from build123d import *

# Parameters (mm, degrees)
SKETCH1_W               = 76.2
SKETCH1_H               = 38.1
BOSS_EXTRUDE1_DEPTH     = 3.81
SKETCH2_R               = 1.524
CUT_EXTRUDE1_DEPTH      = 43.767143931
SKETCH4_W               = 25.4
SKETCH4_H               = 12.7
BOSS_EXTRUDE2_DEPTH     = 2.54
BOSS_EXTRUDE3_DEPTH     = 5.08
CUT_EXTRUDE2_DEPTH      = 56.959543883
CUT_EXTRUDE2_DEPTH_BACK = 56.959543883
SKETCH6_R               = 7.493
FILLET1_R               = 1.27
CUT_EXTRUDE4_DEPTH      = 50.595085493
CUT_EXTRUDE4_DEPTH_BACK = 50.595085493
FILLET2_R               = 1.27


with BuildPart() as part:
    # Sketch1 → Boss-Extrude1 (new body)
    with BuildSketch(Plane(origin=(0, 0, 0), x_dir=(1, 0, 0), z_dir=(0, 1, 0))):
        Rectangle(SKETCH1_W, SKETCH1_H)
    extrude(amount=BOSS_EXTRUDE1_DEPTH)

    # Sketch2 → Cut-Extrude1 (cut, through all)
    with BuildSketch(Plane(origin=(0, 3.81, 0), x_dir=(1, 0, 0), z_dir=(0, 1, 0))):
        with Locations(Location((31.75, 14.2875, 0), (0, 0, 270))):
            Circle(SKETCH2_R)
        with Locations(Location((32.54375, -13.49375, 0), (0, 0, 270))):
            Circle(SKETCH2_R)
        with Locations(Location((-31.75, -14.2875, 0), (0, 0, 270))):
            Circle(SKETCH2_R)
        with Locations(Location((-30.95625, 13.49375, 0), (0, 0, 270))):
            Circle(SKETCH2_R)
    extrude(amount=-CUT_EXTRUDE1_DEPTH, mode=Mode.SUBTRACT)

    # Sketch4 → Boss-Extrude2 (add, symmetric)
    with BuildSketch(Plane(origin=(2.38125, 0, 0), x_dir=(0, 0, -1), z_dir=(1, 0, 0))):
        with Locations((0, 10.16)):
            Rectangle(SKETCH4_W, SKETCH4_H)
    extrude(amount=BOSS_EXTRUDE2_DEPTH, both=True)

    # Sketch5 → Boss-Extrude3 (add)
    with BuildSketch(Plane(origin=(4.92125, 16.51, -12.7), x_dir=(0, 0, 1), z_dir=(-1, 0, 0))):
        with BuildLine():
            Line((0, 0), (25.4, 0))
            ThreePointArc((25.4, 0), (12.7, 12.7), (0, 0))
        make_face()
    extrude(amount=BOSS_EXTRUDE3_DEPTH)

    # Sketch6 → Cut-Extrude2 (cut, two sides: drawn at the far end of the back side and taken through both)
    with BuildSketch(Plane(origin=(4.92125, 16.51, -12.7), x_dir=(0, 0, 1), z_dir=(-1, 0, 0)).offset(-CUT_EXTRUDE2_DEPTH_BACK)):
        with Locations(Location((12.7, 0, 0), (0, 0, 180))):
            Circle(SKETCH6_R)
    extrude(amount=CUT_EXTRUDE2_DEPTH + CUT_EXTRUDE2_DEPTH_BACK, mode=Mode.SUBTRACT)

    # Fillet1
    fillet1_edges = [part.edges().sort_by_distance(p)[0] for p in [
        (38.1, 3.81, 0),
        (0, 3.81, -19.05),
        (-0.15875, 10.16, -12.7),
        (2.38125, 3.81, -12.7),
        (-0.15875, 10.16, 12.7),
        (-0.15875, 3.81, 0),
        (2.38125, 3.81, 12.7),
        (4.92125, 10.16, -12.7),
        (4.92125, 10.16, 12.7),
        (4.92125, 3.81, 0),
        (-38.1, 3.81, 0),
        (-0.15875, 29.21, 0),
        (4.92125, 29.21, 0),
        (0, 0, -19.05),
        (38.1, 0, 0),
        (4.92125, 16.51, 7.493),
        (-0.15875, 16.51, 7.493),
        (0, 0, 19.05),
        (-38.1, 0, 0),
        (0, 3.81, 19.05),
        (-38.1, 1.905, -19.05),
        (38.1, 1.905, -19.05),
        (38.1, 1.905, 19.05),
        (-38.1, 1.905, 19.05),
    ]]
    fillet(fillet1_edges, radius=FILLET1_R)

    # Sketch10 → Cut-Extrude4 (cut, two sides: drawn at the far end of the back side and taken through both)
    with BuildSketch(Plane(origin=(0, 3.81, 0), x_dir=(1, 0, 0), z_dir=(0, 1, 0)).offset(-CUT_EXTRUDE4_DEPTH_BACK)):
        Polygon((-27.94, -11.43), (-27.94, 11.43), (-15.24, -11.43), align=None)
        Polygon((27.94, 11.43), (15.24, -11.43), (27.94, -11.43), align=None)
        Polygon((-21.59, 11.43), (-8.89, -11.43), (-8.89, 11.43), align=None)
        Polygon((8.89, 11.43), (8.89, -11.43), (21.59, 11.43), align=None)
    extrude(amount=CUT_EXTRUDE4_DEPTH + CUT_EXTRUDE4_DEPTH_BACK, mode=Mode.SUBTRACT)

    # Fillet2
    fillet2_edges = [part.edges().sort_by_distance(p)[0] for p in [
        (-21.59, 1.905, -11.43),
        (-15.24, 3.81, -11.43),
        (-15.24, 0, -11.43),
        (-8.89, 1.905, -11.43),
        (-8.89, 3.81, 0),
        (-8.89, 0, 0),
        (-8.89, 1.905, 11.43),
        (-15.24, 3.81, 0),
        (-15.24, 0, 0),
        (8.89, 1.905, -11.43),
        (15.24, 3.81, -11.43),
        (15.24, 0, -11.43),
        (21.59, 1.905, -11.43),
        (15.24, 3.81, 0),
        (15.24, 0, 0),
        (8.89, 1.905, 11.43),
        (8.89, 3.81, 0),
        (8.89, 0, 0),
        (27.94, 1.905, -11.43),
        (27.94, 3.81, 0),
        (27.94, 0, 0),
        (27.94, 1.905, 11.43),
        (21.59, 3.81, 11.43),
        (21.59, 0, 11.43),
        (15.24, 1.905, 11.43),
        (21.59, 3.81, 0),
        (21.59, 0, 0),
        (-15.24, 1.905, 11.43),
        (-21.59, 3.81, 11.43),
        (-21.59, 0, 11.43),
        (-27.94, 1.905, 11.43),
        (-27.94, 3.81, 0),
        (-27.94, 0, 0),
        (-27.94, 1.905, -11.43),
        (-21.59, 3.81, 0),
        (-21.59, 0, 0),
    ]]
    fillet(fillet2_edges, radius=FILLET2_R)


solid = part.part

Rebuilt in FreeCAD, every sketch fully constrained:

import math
import FreeCAD as App
import Part
import Sketcher
Q = App.Units.Quantity


def edges_at(feature, points):
    """Names of the edges that pass closest to the given points."""
    edges = feature.Shape.Edges
    near = lambda p: min(range(len(edges)), key=lambda i: edges[i].distToShape(Part.Vertex(*p))[0])
    return sorted({f"Edge{near(p) + 1}" for p in points})

doc = App.newDocument("Part")
body = doc.addObject("PartDesign::Body", "Body")

# Sketch on XZ plane
sketch1 = body.newObject("Sketcher::SketchObject", "Sketch")
sketch1.AttachmentSupport = (doc.getObject("XZ_Plane"), [""])
sketch1.MapMode = "FlatFace"
sketch1.addGeometry([
    Part.LineSegment(App.Vector(-38, -19, 0), App.Vector(-38, 19, 0)),
    Part.LineSegment(App.Vector(-38, 19, 0), App.Vector(38, 19, 0)),
    Part.LineSegment(App.Vector(38, 19, 0), App.Vector(38, -19, 0)),
    Part.LineSegment(App.Vector(38, -19, 0), App.Vector(-38, -19, 0)),
], False)
sketch1.addConstraint([
    Sketcher.Constraint("Coincident", 0, 2, 1, 1),
    Sketcher.Constraint("Coincident", 1, 2, 2, 1),
    Sketcher.Constraint("Coincident", 2, 2, 3, 1),
    Sketcher.Constraint("Coincident", 3, 2, 0, 1),
    Sketcher.Constraint("Vertical", 0),
    Sketcher.Constraint("Horizontal", 1),
    Sketcher.Constraint("Vertical", 2),
    Sketcher.Constraint("Horizontal", 3),
    Sketcher.Constraint("Symmetric", 0, 2, 2, 2, -1, 1),
    Sketcher.Constraint("DistanceX", 1, 1, 1, 2, Q("3 in")),
    Sketcher.Constraint("DistanceY", 0, 1, 0, 2, Q("1.5 in")),
])
pad1 = body.newObject("PartDesign::Pad", "Pad")
pad1.Profile = sketch1
pad1.Length = Q("0.15 in")
pad1.Reversed = True

# Sketch on XZ plane
sketch2 = body.newObject("Sketcher::SketchObject", "Sketch001")
sketch2.AttachmentSupport = (doc.getObject("XZ_Plane"), [""])
sketch2.MapMode = "FlatFace"
sketch2.AttachmentOffset = App.Placement(App.Vector(0, 0, -0.15 * 25.4), App.Rotation())
sketch2.addGeometry([
    Part.Circle(App.Vector(31.8, -14.3, 0), App.Vector(0, 0, 1), 1.5),
    Part.Circle(App.Vector(32.5, 13.5, 0), App.Vector(0, 0, 1), 1.5),
    Part.Circle(App.Vector(-31.8, 14.3, 0), App.Vector(0, 0, 1), 1.5),
    Part.Circle(App.Vector(-31, -13.5, 0), App.Vector(0, 0, 1), 1.5),
], False)
sketch2.addConstraint([
    Sketcher.Constraint("Equal", 0, 1),
    Sketcher.Constraint("Equal", 1, 2),
    Sketcher.Constraint("Equal", 2, 3),
    Sketcher.Constraint("Symmetric", 0, 3, 2, 3, -1, 1),
    Sketcher.Constraint("Diameter", 0, Q("0.12 in")),
    Sketcher.Constraint("DistanceX", 2, 3, 0, 3, Q("2.5 in")),
    Sketcher.Constraint("DistanceX", 3, 3, 1, 3, Q("2.5 in")),
    Sketcher.Constraint("DistanceY", 0, 3, -1, 1, Q("0.5625 in")),
    Sketcher.Constraint("DistanceX", -1, 1, 1, 3, Q("1.28125 in")),
    Sketcher.Constraint("DistanceY", -1, 1, 1, 3, Q("0.53125 in")),
    Sketcher.Constraint("DistanceY", 3, 3, -1, 1, Q("0.53125 in")),
])
pocket1 = body.newObject("PartDesign::Pocket", "Pocket")
pocket1.Profile = sketch2
pocket1.Type = "ThroughAll"
pocket1.Reversed = True

# Sketch on YZ plane
sketch3 = body.newObject("Sketcher::SketchObject", "Sketch002")
sketch3.AttachmentSupport = (doc.getObject("YZ_Plane"), [""])
sketch3.MapMode = "FlatFace"
sketch3.AttachmentOffset = App.Placement(App.Vector(0, 0, 0.09375 * 25.4), App.Rotation())
sketch3.addGeometry([
    Part.LineSegment(App.Vector(17, 13, 0), App.Vector(4, 13, 0)),
    Part.LineSegment(App.Vector(4, 13, 0), App.Vector(4, -13, 0)),
    Part.LineSegment(App.Vector(4, -13, 0), App.Vector(17, -13, 0)),
    Part.LineSegment(App.Vector(17, -13, 0), App.Vector(17, 13, 0)),
], False)
sketch3.addConstraint([
    Sketcher.Constraint("Coincident", 0, 2, 1, 1),
    Sketcher.Constraint("Coincident", 1, 2, 2, 1),
    Sketcher.Constraint("Coincident", 2, 2, 3, 1),
    Sketcher.Constraint("Coincident", 3, 2, 0, 1),
    Sketcher.Constraint("Horizontal", 0),
    Sketcher.Constraint("Vertical", 1),
    Sketcher.Constraint("Horizontal", 2),
    Sketcher.Constraint("Vertical", 3),
    Sketcher.Constraint("DistanceY", 1, 2, 1, 1, Q("1 in")),
    Sketcher.Constraint("DistanceX", 0, 2, 0, 1, Q("0.5 in")),
    Sketcher.Constraint("DistanceY", -1, 1, 0, 2, Q("0.5 in")),
    Sketcher.Constraint("DistanceX", -1, 1, 0, 2, Q("0.15 in")),
])
pad2 = body.newObject("PartDesign::Pad", "Pad001")
pad2.Profile = sketch3
pad2.Length = Q("0.2 in")
pad2.Midplane = True

# Sketch on YZ plane
sketch4 = body.newObject("Sketcher::SketchObject", "Sketch003")
sketch4.AttachmentSupport = (doc.getObject("YZ_Plane"), [""])
sketch4.MapMode = "FlatFace"
sketch4.AttachmentOffset = App.Placement(App.Vector(0, 0, 4.92125), App.Rotation())
sketch4.addGeometry([
    Part.LineSegment(App.Vector(17, -13, 0), App.Vector(17, 13, 0)),
    Part.ArcOfCircle(Part.Circle(App.Vector(17, 0, 0), App.Vector(0, 0, 1), 13), math.radians(-90), math.radians(90)),
], False)
sketch4.addConstraint([
    Sketcher.Constraint("Coincident", 0, 1, 1, 1),
    Sketcher.Constraint("Coincident", 1, 2, 0, 2),
    Sketcher.Constraint("Vertical", 0),
    Sketcher.Constraint("PointOnObject", 1, 3, -1),
    Sketcher.Constraint("Vertical", 1, 3, 0, 1),
    Sketcher.Constraint("Radius", 1, Q("0.5 in")),
    Sketcher.Constraint("DistanceX", -1, 1, 1, 3, Q("0.65 in")),
])
pad3 = body.newObject("PartDesign::Pad", "Pad002")
pad3.Profile = sketch4
pad3.Length = Q("0.2 in")
pad3.Reversed = True

# Sketch on YZ plane
sketch5 = body.newObject("Sketcher::SketchObject", "Sketch004")
sketch5.AttachmentSupport = (doc.getObject("YZ_Plane"), [""])
sketch5.MapMode = "FlatFace"
sketch5.AttachmentOffset = App.Placement(App.Vector(0, 0, 4.92125), App.Rotation())
sketch5.addGeometry(Part.Circle(App.Vector(17, 0, 0), App.Vector(0, 0, 1), 7), False)
sketch5.addConstraint([
    Sketcher.Constraint("PointOnObject", 0, 3, -1),
    Sketcher.Constraint("Diameter", 0, Q("0.59 in")),
    Sketcher.Constraint("DistanceX", -1, 1, 0, 3, Q("0.65 in")),
])
pocket2 = body.newObject("PartDesign::Pocket", "Pocket001")
pocket2.Profile = sketch5
pocket2.Type = "ThroughAll"
pocket2.Midplane = True
doc.recompute()

fillet = body.newObject("PartDesign::Fillet", "Fillet")
fillet.Base = (pocket2, edges_at(pocket2, [
    (38.1, 3.81, 0),
    (0, 3.81, -19.05),
    (-0.159, 10.16, -12.7),
    (2.381, 3.81, -12.7),
    (-0.159, 10.16, 12.7),
    (-0.159, 3.81, 0),
    (2.381, 3.81, 12.7),
    (4.921, 10.16, -12.7),
    (4.921, 10.16, 12.7),
    (4.921, 3.81, 0),
    (-38.1, 3.81, 0),
    (-0.159, 29.21, 0),
    (4.921, 29.21, 0),
    (0, 0, -19.05),
    (38.1, 0, 0),
    (4.921, 16.51, 7.493),
    (-0.159, 16.51, 7.493),
    (0, 0, 19.05),
    (-38.1, 0, 0),
    (0, 3.81, 19.05),
    (-38.1, 1.905, -19.05),
    (38.1, 1.905, -19.05),
    (38.1, 1.905, 19.05),
    (-38.1, 1.905, 19.05),
]))
fillet.Radius = Q("0.05 in")

# Sketch on XZ plane
sketch6 = body.newObject("Sketcher::SketchObject", "Sketch005")
sketch6.AttachmentSupport = (doc.getObject("XZ_Plane"), [""])
sketch6.MapMode = "FlatFace"
sketch6.AttachmentOffset = App.Placement(App.Vector(0, 0, -0.15 * 25.4), App.Rotation())
sketch6.addGeometry([
    Part.LineSegment(App.Vector(-28, -11, 0), App.Vector(-28, 11, 0)),  # 0
    Part.LineSegment(App.Vector(-28, 11, 0), App.Vector(-15, 11, 0)),  # 1
    Part.LineSegment(App.Vector(-15, 11, 0), App.Vector(-28, -11, 0)),  # 2
    Part.LineSegment(App.Vector(28, -11, 0), App.Vector(15, 11, 0)),  # 3
    Part.LineSegment(App.Vector(15, 11, 0), App.Vector(28, 11, 0)),  # 4
    Part.LineSegment(App.Vector(28, 11, 0), App.Vector(28, -11, 0)),  # 5
    Part.LineSegment(App.Vector(-22, -11, 0), App.Vector(-9, 11, 0)),  # 6
    Part.LineSegment(App.Vector(-9, 11, 0), App.Vector(-9, -11, 0)),  # 7
    Part.LineSegment(App.Vector(-9, -11, 0), App.Vector(-22, -11, 0)),  # 8
    Part.LineSegment(App.Vector(9, -11, 0), App.Vector(9, 11, 0)),  # 9
    Part.LineSegment(App.Vector(9, 11, 0), App.Vector(22, -11, 0)),  # 10
    Part.LineSegment(App.Vector(22, -11, 0), App.Vector(9, -11, 0)),  # 11
], False)
sketch6.addConstraint([
    Sketcher.Constraint("Coincident", 0, 2, 1, 1),
    Sketcher.Constraint("Coincident", 1, 2, 2, 1),
    Sketcher.Constraint("Coincident", 2, 2, 0, 1),
    Sketcher.Constraint("Coincident", 3, 2, 4, 1),
    Sketcher.Constraint("Coincident", 4, 2, 5, 1),
    Sketcher.Constraint("Coincident", 5, 2, 3, 1),
    Sketcher.Constraint("Coincident", 6, 2, 7, 1),
    Sketcher.Constraint("Coincident", 7, 2, 8, 1),
    Sketcher.Constraint("Coincident", 8, 2, 6, 1),
    Sketcher.Constraint("Coincident", 9, 2, 10, 1),
    Sketcher.Constraint("Coincident", 10, 2, 11, 1),
    Sketcher.Constraint("Coincident", 11, 2, 9, 1),
    Sketcher.Constraint("Vertical", 0),
    Sketcher.Constraint("Horizontal", 1),
    Sketcher.Constraint("Horizontal", 4),
    Sketcher.Constraint("Vertical", 5),
    Sketcher.Constraint("Vertical", 7),
    Sketcher.Constraint("Horizontal", 8),
    Sketcher.Constraint("Vertical", 9),
    Sketcher.Constraint("Horizontal", 11),
    Sketcher.Constraint("Symmetric", 2, 2, 4, 2, -1, 1),
    Sketcher.Constraint("Symmetric", 7, 2, 9, 2, -1, 1),
    Sketcher.Constraint("Symmetric", 1, 2, 3, 2, -2),
    Sketcher.Constraint("Symmetric", 8, 2, 10, 2, -2),
    Sketcher.Constraint("Parallel", 2, 6),
    Sketcher.Constraint("Parallel", 3, 10),
    Sketcher.Constraint("Horizontal", 2, 2, 5, 2),
    Sketcher.Constraint("Horizontal", 4, 2, 6, 2),
    Sketcher.Constraint("DistanceX", 1, 1, 1, 2, Q("0.5 in")),
    Sketcher.Constraint("DistanceY", 0, 1, 0, 2, Q("0.9 in")),
    Sketcher.Constraint("DistanceX", 0, 2, -1, 1, Q("1.1 in")),
    Sketcher.Constraint("DistanceX", 6, 2, 9, 2, Q("0.7 in")),
])
pocket3 = body.newObject("PartDesign::Pocket", "Pocket002")
pocket3.Profile = sketch6
pocket3.Type = "ThroughAll"
pocket3.Midplane = True
doc.recompute()

fillet2 = body.newObject("PartDesign::Fillet", "Fillet001")
fillet2.Base = (pocket3, edges_at(pocket3, [
    (-21.59, 1.905, -11.43),
    (-15.24, 3.81, -11.43),
    (-15.24, 0, -11.43),
    (-8.89, 1.905, -11.43),
    (-8.89, 3.81, 0),
    (-8.89, 0, 0),
    (-8.89, 1.905, 11.43),
    (-15.24, 3.81, 0),
    (-15.24, 0, 0),
    (8.89, 1.905, -11.43),
    (15.24, 3.81, -11.43),
    (15.24, 0, -11.43),
    (21.59, 1.905, -11.43),
    (15.24, 3.81, 0),
    (15.24, 0, 0),
    (8.89, 1.905, 11.43),
    (8.89, 3.81, 0),
    (8.89, 0, 0),
    (27.94, 1.905, -11.43),
    (27.94, 3.81, 0),
    (27.94, 0, 0),
    (27.94, 1.905, 11.43),
    (21.59, 3.81, 11.43),
    (21.59, 0, 11.43),
    (15.24, 1.905, 11.43),
    (21.59, 3.81, 0),
    (21.59, 0, 0),
    (-15.24, 1.905, 11.43),
    (-21.59, 3.81, 11.43),
    (-21.59, 0, 11.43),
    (-27.94, 1.905, 11.43),
    (-27.94, 3.81, 0),
    (-27.94, 0, 0),
    (-27.94, 1.905, -11.43),
    (-21.59, 3.81, 0),
    (-21.59, 0, 0),
]))
fillet2.Radius = Q("0.05 in")

doc.recompute()
